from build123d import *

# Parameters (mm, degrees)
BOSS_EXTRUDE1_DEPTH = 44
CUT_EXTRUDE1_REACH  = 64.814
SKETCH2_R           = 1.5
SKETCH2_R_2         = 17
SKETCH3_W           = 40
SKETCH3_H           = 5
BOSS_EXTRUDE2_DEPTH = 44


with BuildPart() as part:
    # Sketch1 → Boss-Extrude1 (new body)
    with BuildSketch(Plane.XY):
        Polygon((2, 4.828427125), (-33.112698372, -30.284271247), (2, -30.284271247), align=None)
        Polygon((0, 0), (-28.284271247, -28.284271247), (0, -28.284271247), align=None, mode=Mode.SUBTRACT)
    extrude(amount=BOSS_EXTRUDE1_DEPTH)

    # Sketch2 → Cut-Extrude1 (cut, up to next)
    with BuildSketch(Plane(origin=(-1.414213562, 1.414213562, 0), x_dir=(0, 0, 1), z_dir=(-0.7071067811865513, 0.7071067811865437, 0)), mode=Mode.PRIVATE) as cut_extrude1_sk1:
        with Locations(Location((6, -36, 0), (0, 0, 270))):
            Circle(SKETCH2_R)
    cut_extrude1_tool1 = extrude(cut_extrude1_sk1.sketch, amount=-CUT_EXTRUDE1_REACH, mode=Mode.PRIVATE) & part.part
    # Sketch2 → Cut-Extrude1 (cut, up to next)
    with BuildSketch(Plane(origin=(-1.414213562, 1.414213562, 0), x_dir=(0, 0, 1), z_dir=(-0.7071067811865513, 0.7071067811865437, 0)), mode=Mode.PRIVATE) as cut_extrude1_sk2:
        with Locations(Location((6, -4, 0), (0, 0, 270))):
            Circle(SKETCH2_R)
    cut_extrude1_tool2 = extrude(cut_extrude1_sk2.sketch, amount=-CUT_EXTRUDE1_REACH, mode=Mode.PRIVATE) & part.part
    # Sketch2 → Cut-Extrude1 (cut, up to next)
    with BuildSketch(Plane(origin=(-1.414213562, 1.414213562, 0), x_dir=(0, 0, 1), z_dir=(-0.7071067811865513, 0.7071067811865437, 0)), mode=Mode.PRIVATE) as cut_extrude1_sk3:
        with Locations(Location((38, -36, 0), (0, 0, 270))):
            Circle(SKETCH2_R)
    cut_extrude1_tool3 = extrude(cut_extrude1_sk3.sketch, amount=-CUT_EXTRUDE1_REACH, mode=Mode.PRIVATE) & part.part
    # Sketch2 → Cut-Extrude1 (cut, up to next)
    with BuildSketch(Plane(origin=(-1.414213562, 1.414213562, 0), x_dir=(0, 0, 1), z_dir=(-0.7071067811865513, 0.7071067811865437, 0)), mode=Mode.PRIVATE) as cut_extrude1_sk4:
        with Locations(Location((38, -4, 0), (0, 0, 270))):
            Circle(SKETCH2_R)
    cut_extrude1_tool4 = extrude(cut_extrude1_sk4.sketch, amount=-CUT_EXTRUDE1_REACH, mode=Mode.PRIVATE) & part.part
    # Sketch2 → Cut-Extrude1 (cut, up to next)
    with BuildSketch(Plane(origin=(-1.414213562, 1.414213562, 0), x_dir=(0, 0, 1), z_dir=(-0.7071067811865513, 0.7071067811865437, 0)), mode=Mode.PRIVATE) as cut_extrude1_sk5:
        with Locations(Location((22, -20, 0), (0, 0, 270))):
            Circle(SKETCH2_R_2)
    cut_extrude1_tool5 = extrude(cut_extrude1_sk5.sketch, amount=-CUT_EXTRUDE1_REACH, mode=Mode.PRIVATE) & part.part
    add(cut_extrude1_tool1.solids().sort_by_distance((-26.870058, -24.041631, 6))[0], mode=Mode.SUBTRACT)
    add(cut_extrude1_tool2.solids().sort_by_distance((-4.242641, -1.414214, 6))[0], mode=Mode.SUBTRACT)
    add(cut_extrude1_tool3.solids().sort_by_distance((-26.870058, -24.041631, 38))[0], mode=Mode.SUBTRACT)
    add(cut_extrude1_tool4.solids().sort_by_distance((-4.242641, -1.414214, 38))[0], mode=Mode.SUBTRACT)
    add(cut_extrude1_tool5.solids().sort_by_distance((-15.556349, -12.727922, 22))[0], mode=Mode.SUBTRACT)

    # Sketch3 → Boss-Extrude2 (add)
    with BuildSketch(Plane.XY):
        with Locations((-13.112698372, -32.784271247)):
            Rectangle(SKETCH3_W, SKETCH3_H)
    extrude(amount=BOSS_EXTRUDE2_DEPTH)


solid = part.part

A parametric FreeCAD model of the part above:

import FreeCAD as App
import Part
import Sketcher
Q = App.Units.Quantity

doc = App.newDocument("Part")
body = doc.addObject("PartDesign::Body", "Body")

# Sketch on XY plane
sketch1 = doc.addObject("Sketcher::SketchObject", "Sketch")
body.addObject(sketch1)
sketch1.AttachmentSupport = (doc.XY_Plane, [""])
sketch1.MapMode = "FlatFace"
sketch1.addGeometry([
    Part.LineSegment(App.Vector(2, 4.828427, 0), App.Vector(-33.112698, -30.284271, 0)),  # 0
    Part.LineSegment(App.Vector(-33.112698, -30.284271, 0), App.Vector(2, -30.284271, 0)),  # 1
    Part.LineSegment(App.Vector(2, -30.284271, 0), App.Vector(2, 4.828427, 0)),  # 2
    Part.LineSegment(App.Vector(-28.284271, -28.284271, 0), App.Vector(0, 0, 0)),  # 3
    Part.LineSegment(App.Vector(0, 0, 0), App.Vector(0, -28.284271, 0)),  # 4
    Part.LineSegment(App.Vector(0, -28.284271, 0), App.Vector(-28.284271, -28.284271, 0)),  # 5
], False)
sketch1.addConstraint([
    Sketcher.Constraint("Coincident", 0, 2, 1, 1),
    Sketcher.Constraint("Coincident", 1, 2, 2, 1),
    Sketcher.Constraint("Coincident", 2, 2, 0, 1),
    Sketcher.Constraint("Coincident", 3, 2, 4, 1),
    Sketcher.Constraint("Coincident", 4, 2, 5, 1),
    Sketcher.Constraint("Coincident", 5, 2, 3, 1),
    Sketcher.Constraint("Horizontal", 1),
    Sketcher.Constraint("Vertical", 2),
    Sketcher.Constraint("Vertical", 4),
    Sketcher.Constraint("Horizontal", 5),
    Sketcher.Constraint("Coincident", 3, 2, -1, 1),
    Sketcher.Constraint("Parallel", 0, 3),
    Sketcher.Constraint("Equal", 1, 2),
    Sketcher.Constraint("Distance", 3, Q("40 mm")),
    Sketcher.Constraint("DistanceX", -1, 1, 1, 2, Q("2 mm")),
    Sketcher.Constraint("DistanceY", 1, 2, 4, 2, Q("2 mm")),
    Sketcher.Constraint("DistanceX", 1, 1, 1, 2, Q("35.112698 mm")),
])
pad1 = doc.addObject("PartDesign::Pad", "Pad")
body.addObject(pad1)
pad1.Profile = sketch1
pad1.Length = 44

# Sketch on an angled plane
sketch2 = doc.addObject("Sketcher::SketchObject", "Sketch001")
body.addObject(sketch2)
sketch2.Placement = App.Placement(App.Vector(-1.414214, 1.414214, 0), App.Rotation(App.Vector(0, 0, 1), App.Vector(0.707106781, 0.707106781, 0), App.Vector(-0.707106781, 0.707106781, 0), "ZXY"))
sketch2.addGeometry(Part.Circle(App.Vector(6, -36, 0), App.Vector(0, 0, 1), 1.5), False)
sketch2.addConstraint([
    Sketcher.Constraint("Diameter", 0, Q("3 mm")),
    Sketcher.Constraint("DistanceX", -1, 1, 0, 3, Q("6 mm")),
    Sketcher.Constraint("DistanceY", 0, 3, -1, 1, Q("36 mm")),
])
pocket1 = doc.addObject("PartDesign::Pocket", "Pocket")
body.addObject(pocket1)
pocket1.Profile = sketch2
pocket1.Type = "UpToFirst"

# Sketch on an angled plane
sketch3 = doc.addObject("Sketcher::SketchObject", "Sketch002")
body.addObject(sketch3)
sketch3.Placement = App.Placement(App.Vector(-1.414214, 1.414214, 0), App.Rotation(App.Vector(0, 0, 1), App.Vector(0.707106781, 0.707106781, 0), App.Vector(-0.707106781, 0.707106781, 0), "ZXY"))
sketch3.addGeometry(Part.Circle(App.Vector(6, -4, 0), App.Vector(0, 0, 1), 1.5), False)
sketch3.addConstraint([
    Sketcher.Constraint("Diameter", 0, Q("3 mm")),
    Sketcher.Constraint("DistanceX", -1, 1, 0, 3, Q("6 mm")),
    Sketcher.Constraint("DistanceY", 0, 3, -1, 1, Q("4 mm")),
])
pocket2 = doc.addObject("PartDesign::Pocket", "Pocket001")
body.addObject(pocket2)
pocket2.Profile = sketch3
pocket2.Type = "UpToFirst"

# Sketch on an angled plane
sketch4 = doc.addObject("Sketcher::SketchObject", "Sketch003")
body.addObject(sketch4)
sketch4.Placement = App.Placement(App.Vector(-1.414214, 1.414214, 0), App.Rotation(App.Vector(0, 0, 1), App.Vector(0.707106781, 0.707106781, 0), App.Vector(-0.707106781, 0.707106781, 0), "ZXY"))
sketch4.addGeometry(Part.Circle(App.Vector(38, -36, 0), App.Vector(0, 0, 1), 1.5), False)
sketch4.addConstraint([
    Sketcher.Constraint("Diameter", 0, Q("3 mm")),
    Sketcher.Constraint("DistanceX", -1, 1, 0, 3, Q("38 mm")),
    Sketcher.Constraint("DistanceY", 0, 3, -1, 1, Q("36 mm")),
])
pocket3 = doc.addObject("PartDesign::Pocket", "Pocket002")
body.addObject(pocket3)
pocket3.Profile = sketch4
pocket3.Type = "UpToFirst"

# Sketch on an angled plane
sketch5 = doc.addObject("Sketcher::SketchObject", "Sketch004")
body.addObject(sketch5)
sketch5.Placement = App.Placement(App.Vector(-1.414214, 1.414214, 0), App.Rotation(App.Vector(0, 0, 1), App.Vector(0.707106781, 0.707106781, 0), App.Vector(-0.707106781, 0.707106781, 0), "ZXY"))
sketch5.addGeometry(Part.Circle(App.Vector(38, -4, 0), App.Vector(0, 0, 1), 1.5), False)
sketch5.addConstraint([
    Sketcher.Constraint("Diameter", 0, Q("3 mm")),
    Sketcher.Constraint("DistanceX", -1, 1, 0, 3, Q("38 mm")),
    Sketcher.Constraint("DistanceY", 0, 3, -1, 1, Q("4 mm")),
])
pocket4 = doc.addObject("PartDesign::Pocket", "Pocket003")
body.addObject(pocket4)
pocket4.Profile = sketch5
pocket4.Type = "UpToFirst"

# Sketch on an angled plane
sketch6 = doc.addObject("Sketcher::SketchObject", "Sketch005")
body.addObject(sketch6)
sketch6.Placement = App.Placement(App.Vector(-1.414214, 1.414214, 0), App.Rotation(App.Vector(0, 0, 1), App.Vector(0.707106781, 0.707106781, 0), App.Vector(-0.707106781, 0.707106781, 0), "ZXY"))
sketch6.addGeometry(Part.Circle(App.Vector(22, -20, 0), App.Vector(0, 0, 1), 17), False)
sketch6.addConstraint([
    Sketcher.Constraint("Diameter", 0, Q("34 mm")),
    Sketcher.Constraint("DistanceX", -1, 1, 0, 3, Q("22 mm")),
    Sketcher.Constraint("DistanceY", 0, 3, -1, 1, Q("20 mm")),
])
pocket5 = doc.addObject("PartDesign::Pocket", "Pocket004")
body.addObject(pocket5)
pocket5.Profile = sketch6
pocket5.Type = "UpToFirst"

# Sketch on XY plane
sketch7 = doc.addObject("Sketcher::SketchObject", "Sketch006")
body.addObject(sketch7)
sketch7.AttachmentSupport = (doc.XY_Plane, [""])
sketch7.MapMode = "FlatFace"
sketch7.addGeometry([
    Part.LineSegment(App.Vector(-33.112698, -30.284271, 0), App.Vector(-33.112698, -35.284271, 0)),
    Part.LineSegment(App.Vector(-33.112698, -35.284271, 0), App.Vector(6.887302, -35.284271, 0)),
    Part.LineSegment(App.Vector(6.887302, -35.284271, 0), App.Vector(6.887302, -30.284271, 0)),
    Part.LineSegment(App.Vector(6.887302, -30.284271, 0), App.Vector(-33.112698, -30.284271, 0)),
], False)
sketch7.addConstraint([
    Sketcher.Constraint("Coincident", 0, 2, 1, 1),
    Sketcher.Constraint("Coincident", 1, 2, 2, 1),
    Sketcher.Constraint("Coincident", 2, 2, 3, 1),
    Sketcher.Constraint("Coincident", 3, 2, 0, 1),
    Sketcher.Constraint("Vertical", 0),
    Sketcher.Constraint("Horizontal", 1),
    Sketcher.Constraint("Vertical", 2),
    Sketcher.Constraint("Horizontal", 3),
    Sketcher.Constraint("DistanceX", 1, 1, 1, 2, Q("40 mm")),
    Sketcher.Constraint("DistanceY", 0, 2, 0, 1, Q("5 mm")),
    Sketcher.Constraint("DistanceX", 0, 2, -1, 1, Q("33.112698 mm")),
    Sketcher.Constraint("DistanceY", 0, 2, -1, 1, Q("35.284271 mm")),
])
pad2 = doc.addObject("PartDesign::Pad", "Pad001")
body.addObject(pad2)
pad2.Profile = sketch7
pad2.Length = 44

doc.recompute()
